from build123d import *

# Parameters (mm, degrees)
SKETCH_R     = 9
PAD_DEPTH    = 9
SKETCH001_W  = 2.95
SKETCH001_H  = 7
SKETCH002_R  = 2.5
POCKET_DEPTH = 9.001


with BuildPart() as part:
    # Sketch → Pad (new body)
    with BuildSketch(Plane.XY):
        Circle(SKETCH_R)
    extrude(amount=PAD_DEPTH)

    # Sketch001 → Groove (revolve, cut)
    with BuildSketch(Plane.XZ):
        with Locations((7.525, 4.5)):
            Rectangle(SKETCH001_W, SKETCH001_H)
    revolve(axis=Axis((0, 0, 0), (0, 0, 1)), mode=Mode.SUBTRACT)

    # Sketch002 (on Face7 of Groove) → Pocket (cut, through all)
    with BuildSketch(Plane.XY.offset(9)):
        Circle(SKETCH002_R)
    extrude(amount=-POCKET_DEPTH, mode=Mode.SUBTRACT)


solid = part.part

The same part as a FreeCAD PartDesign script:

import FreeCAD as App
import Part
import Sketcher

V = App.Vector


def add_polygon(sketch, points):
    """Adds a closed chain of lines whose ends are joined by coincident constraints."""
    first, n = sketch.GeometryCount, len(points)
    for a, b in zip(points, points[1:] + points[:1]):
        sketch.addGeometry(Part.LineSegment(App.Vector(*a, 0), App.Vector(*b, 0)), False)
    for i in range(n):
        sketch.addConstraint(Sketcher.Constraint("Coincident", first + i, 2, first + (i + 1) % n, 1))

doc = App.newDocument("Part")
body = doc.addObject("PartDesign::Body", "Body")

sketch1 = body.newObject("Sketcher::SketchObject", "Sketch")
sketch1.AttachmentSupport = (doc.getObject("XY_Plane"), [""])
sketch1.MapMode = "FlatFace"
sketch1.addGeometry(Part.Circle(V(0, 0, 0), V(0, 0, 1), 9), False)
sketch1.addConstraint(Sketcher.Constraint("Coincident", 0, 3, -1, 1))
sketch1.addConstraint(Sketcher.Constraint("Diameter", 0, 18.0))
pad1 = body.newObject("PartDesign::Pad", "Pad")
pad1.Profile = sketch1
pad1.Length = 9

sketch2 = body.newObject("Sketcher::SketchObject", "Sketch001")
sketch2.AttachmentSupport = (doc.getObject("XZ_Plane"), [""])
sketch2.MapMode = "FlatFace"
add_polygon(sketch2, [(6.05, 8), (6.05, 1), (9, 1), (9, 8)])
sketch2.addConstraint(Sketcher.Constraint("Vertical", 0))
sketch2.addConstraint(Sketcher.Constraint("Horizontal", 1))
sketch2.addConstraint(Sketcher.Constraint("Vertical", 2))
sketch2.addConstraint(Sketcher.Constraint("Horizontal", 3))
sketch2.addConstraint(Sketcher.Constraint("DistanceY", 0, 2, 0, 1, 7.0))
sketch2.addConstraint(Sketcher.Constraint("DistanceY", -1, 1, 0, 2, 1.0))
sketch2.addConstraint(Sketcher.Constraint("DistanceX", -1, 1, 1, 2, 9.0))
sketch2.addConstraint(Sketcher.Constraint("DistanceX", 1, 1, 1, 2, 2.95))
groove = body.newObject("PartDesign::Groove", "Groove")
groove.Profile = sketch2
groove.ReferenceAxis = (sketch2, ["V_Axis"])
groove.Angle = 360

sketch3 = body.newObject("Sketcher::SketchObject", "Sketch002")
sketch3.AttachmentSupport = (doc.getObject("XY_Plane"), [""])
sketch3.MapMode = "FlatFace"
sketch3.AttachmentOffset = App.Placement(V(0, 0, 9), App.Rotation())
sketch3.addGeometry(Part.Circle(V(0, 0, 0), V(0, 0, 1), 2.5), False)
sketch3.addConstraint(Sketcher.Constraint("Coincident", 0, 3, -1, 1))
sketch3.addConstraint(Sketcher.Constraint("Diameter", 0, 5.0))
pocket1 = body.newObject("PartDesign::Pocket", "Pocket")
pocket1.Profile = sketch3
pocket1.Type = "ThroughAll"

doc.recompute()
